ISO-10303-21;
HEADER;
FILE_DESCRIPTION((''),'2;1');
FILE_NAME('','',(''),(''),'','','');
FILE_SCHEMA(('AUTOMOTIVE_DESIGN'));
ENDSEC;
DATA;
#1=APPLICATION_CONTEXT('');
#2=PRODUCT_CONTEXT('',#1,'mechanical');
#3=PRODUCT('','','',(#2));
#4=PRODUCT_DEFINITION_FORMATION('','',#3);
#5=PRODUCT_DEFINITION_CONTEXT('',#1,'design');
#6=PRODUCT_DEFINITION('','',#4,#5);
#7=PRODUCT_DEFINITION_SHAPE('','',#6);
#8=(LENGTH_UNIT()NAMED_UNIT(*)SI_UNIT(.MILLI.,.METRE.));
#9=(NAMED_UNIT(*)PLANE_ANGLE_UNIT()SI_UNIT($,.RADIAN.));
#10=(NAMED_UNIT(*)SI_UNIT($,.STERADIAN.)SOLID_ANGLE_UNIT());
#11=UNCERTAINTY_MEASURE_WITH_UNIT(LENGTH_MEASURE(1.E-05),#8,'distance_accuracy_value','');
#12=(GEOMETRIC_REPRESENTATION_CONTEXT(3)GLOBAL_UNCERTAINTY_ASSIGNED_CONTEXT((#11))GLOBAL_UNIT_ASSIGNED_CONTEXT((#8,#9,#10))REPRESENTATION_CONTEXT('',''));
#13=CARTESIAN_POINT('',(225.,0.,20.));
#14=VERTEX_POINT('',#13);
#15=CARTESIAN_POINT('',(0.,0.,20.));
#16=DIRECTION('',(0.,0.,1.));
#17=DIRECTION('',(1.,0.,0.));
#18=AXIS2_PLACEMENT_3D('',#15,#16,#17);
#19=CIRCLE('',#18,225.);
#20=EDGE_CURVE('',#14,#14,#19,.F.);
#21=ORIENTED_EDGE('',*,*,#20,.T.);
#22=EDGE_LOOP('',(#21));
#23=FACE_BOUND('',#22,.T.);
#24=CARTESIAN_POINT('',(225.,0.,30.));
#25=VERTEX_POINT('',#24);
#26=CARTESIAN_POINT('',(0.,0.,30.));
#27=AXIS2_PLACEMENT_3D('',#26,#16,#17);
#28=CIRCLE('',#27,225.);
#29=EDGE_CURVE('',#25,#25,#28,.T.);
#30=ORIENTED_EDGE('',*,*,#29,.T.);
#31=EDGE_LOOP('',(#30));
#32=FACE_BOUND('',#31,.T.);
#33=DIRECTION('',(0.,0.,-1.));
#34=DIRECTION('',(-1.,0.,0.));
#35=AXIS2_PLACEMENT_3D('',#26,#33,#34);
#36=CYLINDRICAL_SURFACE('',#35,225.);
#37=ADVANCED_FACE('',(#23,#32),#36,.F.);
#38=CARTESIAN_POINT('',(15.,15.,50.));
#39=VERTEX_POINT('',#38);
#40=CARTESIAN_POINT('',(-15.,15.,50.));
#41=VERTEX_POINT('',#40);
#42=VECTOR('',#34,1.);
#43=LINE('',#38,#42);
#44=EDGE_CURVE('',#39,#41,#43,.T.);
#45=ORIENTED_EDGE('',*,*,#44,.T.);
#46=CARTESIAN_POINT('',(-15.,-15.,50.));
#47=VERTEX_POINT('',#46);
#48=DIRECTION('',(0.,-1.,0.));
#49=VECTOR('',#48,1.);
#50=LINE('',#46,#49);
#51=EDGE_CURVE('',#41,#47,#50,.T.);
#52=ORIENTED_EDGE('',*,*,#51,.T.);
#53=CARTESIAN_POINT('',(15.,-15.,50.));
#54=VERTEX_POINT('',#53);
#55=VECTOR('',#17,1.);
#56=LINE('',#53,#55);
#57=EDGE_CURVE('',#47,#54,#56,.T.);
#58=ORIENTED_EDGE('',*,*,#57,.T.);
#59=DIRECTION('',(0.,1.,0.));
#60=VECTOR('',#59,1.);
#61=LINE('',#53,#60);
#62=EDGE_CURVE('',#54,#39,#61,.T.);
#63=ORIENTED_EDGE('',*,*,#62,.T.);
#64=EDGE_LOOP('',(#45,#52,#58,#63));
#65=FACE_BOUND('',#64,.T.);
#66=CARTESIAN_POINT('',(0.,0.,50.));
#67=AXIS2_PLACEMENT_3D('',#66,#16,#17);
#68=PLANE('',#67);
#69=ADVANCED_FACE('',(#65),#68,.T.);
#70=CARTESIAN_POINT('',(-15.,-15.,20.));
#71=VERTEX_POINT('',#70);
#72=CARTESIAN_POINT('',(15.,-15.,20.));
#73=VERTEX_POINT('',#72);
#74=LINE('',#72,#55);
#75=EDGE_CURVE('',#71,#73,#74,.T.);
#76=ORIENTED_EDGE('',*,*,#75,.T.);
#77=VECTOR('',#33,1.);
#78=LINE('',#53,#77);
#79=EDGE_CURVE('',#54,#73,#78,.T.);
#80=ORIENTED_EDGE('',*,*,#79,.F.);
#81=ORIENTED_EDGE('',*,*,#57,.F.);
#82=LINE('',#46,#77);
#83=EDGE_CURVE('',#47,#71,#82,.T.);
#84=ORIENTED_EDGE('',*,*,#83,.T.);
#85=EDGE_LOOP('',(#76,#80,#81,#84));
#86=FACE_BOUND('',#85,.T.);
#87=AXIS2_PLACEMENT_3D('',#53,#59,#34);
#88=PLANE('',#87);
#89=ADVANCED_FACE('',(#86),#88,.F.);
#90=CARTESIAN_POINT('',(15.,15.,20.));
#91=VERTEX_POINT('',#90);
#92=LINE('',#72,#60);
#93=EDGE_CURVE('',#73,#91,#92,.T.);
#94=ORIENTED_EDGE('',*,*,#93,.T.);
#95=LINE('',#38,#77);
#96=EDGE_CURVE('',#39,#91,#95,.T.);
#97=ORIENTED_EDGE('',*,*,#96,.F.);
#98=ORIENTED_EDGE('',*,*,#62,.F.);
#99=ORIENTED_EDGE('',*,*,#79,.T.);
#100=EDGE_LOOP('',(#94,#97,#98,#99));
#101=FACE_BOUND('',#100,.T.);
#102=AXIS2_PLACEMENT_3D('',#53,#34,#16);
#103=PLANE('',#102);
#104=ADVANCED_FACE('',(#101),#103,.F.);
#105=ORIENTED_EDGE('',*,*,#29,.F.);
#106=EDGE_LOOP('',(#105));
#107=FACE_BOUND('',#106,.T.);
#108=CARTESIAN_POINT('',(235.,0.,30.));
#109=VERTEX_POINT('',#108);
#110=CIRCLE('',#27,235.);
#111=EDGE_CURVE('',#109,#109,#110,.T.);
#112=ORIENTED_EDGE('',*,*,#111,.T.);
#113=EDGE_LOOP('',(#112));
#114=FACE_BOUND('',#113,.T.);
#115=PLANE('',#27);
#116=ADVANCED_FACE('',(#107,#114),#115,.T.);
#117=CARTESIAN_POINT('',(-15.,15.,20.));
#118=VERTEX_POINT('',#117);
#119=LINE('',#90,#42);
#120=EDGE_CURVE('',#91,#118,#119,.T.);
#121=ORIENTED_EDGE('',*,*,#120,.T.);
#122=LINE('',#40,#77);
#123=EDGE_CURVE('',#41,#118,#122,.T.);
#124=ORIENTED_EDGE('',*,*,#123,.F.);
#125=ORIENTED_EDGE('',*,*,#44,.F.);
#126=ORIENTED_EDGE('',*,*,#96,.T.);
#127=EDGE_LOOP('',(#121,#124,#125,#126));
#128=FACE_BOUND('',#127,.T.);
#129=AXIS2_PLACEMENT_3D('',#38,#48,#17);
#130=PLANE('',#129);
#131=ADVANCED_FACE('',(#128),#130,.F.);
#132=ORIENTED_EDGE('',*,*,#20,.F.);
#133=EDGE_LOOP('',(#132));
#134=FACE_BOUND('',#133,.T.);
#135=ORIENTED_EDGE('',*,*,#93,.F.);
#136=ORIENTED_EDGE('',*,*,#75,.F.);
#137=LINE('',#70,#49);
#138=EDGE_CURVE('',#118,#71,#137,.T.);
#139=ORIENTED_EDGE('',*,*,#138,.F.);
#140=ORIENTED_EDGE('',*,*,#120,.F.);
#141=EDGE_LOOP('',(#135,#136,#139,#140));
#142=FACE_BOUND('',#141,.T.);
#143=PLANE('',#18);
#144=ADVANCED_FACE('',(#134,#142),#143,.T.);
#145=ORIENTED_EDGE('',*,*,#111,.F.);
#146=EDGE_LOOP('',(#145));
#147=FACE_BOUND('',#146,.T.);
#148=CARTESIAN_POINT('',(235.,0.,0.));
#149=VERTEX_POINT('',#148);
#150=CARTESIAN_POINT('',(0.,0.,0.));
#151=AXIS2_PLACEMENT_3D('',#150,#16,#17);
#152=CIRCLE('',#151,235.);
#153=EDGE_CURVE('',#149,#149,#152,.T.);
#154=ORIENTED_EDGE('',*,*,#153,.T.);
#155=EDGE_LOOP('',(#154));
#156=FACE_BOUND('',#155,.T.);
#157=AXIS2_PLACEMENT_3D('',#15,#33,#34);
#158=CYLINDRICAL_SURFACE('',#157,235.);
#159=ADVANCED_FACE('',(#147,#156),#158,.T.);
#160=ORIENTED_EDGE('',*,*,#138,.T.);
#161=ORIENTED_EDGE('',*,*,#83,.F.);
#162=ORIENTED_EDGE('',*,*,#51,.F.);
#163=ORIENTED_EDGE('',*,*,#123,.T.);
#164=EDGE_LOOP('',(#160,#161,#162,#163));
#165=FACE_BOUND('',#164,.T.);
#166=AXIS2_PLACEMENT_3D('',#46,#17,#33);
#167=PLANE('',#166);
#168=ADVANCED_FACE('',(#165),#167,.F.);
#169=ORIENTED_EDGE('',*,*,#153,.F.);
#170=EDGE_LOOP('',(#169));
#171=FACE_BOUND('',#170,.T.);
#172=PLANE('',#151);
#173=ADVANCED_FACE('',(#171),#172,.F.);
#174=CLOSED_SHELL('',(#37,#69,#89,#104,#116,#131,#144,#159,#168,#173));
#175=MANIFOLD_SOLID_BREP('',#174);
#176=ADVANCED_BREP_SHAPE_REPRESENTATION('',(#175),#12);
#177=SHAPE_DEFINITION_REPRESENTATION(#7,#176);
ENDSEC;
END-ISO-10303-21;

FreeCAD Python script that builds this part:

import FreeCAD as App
import Part
import Sketcher
from FreeCAD import Vector
Q = App.Units.Quantity

doc = App.newDocument("Part")
params = doc.addObject("Spreadsheet::Sheet", "Params")
for row, (alias, value) in enumerate([
    ("sketch1_diameter", "470 mm"),
    ("pad1_length", "20 mm"),
    ("sketch2_diameter", "470 mm"),
    ("sketch2_diameter2", "450 mm"),
    ("pad2_length", "10 mm"),
    ("sketch3_width", "30 mm"),
    ("pad3_length", "30 mm"),
], start=1):
    params.set(f"A{row}", alias)
    params.set(f"B{row}", "=" + value)
    params.setAlias(f"B{row}", alias)

body = doc.addObject("PartDesign::Body", "Body")

sketch1 = body.newObject("Sketcher::SketchObject", "Sketch")
sketch1.AttachmentSupport = (doc.getObject("XY_Plane"), [""])
sketch1.MapMode = "FlatFace"
sketch1.addGeometry(Part.Circle(Vector(0, 0, 0), Vector(0, 0, 1), 235), False)
sketch1.addConstraint([
    Sketcher.Constraint("Coincident", 0, 3, -1, 1),
    Sketcher.Constraint("Diameter", 0, Q("470 mm")),
])
sketch1.setExpression("Constraints[1]", "Params.sketch1_diameter")
pad1 = body.newObject("PartDesign::Pad", "Pad")
pad1.Profile = sketch1
pad1.setExpression("Length", "Params.pad1_length")

sketch2 = body.newObject("Sketcher::SketchObject", "Sketch001")
sketch2.AttachmentSupport = (doc.getObject("XY_Plane"), [""])
sketch2.MapMode = "FlatFace"
sketch2.AttachmentOffset = App.Placement(Vector(0, 0, 20), App.Rotation())
sketch2.addGeometry([
    Part.Circle(Vector(0, 0, 0), Vector(0, 0, 1), 235),
    Part.Circle(Vector(0, 0, 0), Vector(0, 0, 1), 225),
], False)
sketch2.addConstraint([
    Sketcher.Constraint("Coincident", 0, 3, -1, 1),
    Sketcher.Constraint("Coincident", 1, 3, -1, 1),
    Sketcher.Constraint("Diameter", 0, Q("470 mm")),
    Sketcher.Constraint("Diameter", 1, Q("450 mm")),
])
sketch2.setExpression("Constraints[2]", "Params.sketch2_diameter")
sketch2.setExpression("Constraints[3]", "Params.sketch2_diameter2")
pad2 = body.newObject("PartDesign::Pad", "Pad001")
pad2.Profile = sketch2
pad2.setExpression("Length", "Params.pad2_length")

sketch3 = body.newObject("Sketcher::SketchObject", "Sketch002")
sketch3.AttachmentSupport = (doc.getObject("XY_Plane"), [""])
sketch3.MapMode = "FlatFace"
sketch3.AttachmentOffset = App.Placement(Vector(0, 0, 20), App.Rotation())
sketch3.addGeometry([
    Part.LineSegment(Vector(-15, 15, 0), Vector(-15, -15, 0)),
    Part.LineSegment(Vector(-15, -15, 0), Vector(15, -15, 0)),
    Part.LineSegment(Vector(15, -15, 0), Vector(15, 15, 0)),
    Part.LineSegment(Vector(15, 15, 0), Vector(-15, 15, 0)),
], False)
sketch3.addConstraint([
    Sketcher.Constraint("Coincident", 0, 2, 1, 1),
    Sketcher.Constraint("Coincident", 1, 2, 2, 1),
    Sketcher.Constraint("Coincident", 2, 2, 3, 1),
    Sketcher.Constraint("Coincident", 3, 2, 0, 1),
    Sketcher.Constraint("Vertical", 0),
    Sketcher.Constraint("Horizontal", 1),
    Sketcher.Constraint("Vertical", 2),
    Sketcher.Constraint("Horizontal", 3),
    Sketcher.Constraint("Symmetric", 0, 2, 2, 2, -1, 1),
    Sketcher.Constraint("Equal", 3, 0),
    Sketcher.Constraint("DistanceX", 1, 1, 1, 2, Q("30 mm")),
])
sketch3.setExpression("Constraints[10]", "Params.sketch3_width")
pad3 = body.newObject("PartDesign::Pad", "Pad002")
pad3.Profile = sketch3
pad3.setExpression("Length", "Params.pad3_length")

doc.recompute()
